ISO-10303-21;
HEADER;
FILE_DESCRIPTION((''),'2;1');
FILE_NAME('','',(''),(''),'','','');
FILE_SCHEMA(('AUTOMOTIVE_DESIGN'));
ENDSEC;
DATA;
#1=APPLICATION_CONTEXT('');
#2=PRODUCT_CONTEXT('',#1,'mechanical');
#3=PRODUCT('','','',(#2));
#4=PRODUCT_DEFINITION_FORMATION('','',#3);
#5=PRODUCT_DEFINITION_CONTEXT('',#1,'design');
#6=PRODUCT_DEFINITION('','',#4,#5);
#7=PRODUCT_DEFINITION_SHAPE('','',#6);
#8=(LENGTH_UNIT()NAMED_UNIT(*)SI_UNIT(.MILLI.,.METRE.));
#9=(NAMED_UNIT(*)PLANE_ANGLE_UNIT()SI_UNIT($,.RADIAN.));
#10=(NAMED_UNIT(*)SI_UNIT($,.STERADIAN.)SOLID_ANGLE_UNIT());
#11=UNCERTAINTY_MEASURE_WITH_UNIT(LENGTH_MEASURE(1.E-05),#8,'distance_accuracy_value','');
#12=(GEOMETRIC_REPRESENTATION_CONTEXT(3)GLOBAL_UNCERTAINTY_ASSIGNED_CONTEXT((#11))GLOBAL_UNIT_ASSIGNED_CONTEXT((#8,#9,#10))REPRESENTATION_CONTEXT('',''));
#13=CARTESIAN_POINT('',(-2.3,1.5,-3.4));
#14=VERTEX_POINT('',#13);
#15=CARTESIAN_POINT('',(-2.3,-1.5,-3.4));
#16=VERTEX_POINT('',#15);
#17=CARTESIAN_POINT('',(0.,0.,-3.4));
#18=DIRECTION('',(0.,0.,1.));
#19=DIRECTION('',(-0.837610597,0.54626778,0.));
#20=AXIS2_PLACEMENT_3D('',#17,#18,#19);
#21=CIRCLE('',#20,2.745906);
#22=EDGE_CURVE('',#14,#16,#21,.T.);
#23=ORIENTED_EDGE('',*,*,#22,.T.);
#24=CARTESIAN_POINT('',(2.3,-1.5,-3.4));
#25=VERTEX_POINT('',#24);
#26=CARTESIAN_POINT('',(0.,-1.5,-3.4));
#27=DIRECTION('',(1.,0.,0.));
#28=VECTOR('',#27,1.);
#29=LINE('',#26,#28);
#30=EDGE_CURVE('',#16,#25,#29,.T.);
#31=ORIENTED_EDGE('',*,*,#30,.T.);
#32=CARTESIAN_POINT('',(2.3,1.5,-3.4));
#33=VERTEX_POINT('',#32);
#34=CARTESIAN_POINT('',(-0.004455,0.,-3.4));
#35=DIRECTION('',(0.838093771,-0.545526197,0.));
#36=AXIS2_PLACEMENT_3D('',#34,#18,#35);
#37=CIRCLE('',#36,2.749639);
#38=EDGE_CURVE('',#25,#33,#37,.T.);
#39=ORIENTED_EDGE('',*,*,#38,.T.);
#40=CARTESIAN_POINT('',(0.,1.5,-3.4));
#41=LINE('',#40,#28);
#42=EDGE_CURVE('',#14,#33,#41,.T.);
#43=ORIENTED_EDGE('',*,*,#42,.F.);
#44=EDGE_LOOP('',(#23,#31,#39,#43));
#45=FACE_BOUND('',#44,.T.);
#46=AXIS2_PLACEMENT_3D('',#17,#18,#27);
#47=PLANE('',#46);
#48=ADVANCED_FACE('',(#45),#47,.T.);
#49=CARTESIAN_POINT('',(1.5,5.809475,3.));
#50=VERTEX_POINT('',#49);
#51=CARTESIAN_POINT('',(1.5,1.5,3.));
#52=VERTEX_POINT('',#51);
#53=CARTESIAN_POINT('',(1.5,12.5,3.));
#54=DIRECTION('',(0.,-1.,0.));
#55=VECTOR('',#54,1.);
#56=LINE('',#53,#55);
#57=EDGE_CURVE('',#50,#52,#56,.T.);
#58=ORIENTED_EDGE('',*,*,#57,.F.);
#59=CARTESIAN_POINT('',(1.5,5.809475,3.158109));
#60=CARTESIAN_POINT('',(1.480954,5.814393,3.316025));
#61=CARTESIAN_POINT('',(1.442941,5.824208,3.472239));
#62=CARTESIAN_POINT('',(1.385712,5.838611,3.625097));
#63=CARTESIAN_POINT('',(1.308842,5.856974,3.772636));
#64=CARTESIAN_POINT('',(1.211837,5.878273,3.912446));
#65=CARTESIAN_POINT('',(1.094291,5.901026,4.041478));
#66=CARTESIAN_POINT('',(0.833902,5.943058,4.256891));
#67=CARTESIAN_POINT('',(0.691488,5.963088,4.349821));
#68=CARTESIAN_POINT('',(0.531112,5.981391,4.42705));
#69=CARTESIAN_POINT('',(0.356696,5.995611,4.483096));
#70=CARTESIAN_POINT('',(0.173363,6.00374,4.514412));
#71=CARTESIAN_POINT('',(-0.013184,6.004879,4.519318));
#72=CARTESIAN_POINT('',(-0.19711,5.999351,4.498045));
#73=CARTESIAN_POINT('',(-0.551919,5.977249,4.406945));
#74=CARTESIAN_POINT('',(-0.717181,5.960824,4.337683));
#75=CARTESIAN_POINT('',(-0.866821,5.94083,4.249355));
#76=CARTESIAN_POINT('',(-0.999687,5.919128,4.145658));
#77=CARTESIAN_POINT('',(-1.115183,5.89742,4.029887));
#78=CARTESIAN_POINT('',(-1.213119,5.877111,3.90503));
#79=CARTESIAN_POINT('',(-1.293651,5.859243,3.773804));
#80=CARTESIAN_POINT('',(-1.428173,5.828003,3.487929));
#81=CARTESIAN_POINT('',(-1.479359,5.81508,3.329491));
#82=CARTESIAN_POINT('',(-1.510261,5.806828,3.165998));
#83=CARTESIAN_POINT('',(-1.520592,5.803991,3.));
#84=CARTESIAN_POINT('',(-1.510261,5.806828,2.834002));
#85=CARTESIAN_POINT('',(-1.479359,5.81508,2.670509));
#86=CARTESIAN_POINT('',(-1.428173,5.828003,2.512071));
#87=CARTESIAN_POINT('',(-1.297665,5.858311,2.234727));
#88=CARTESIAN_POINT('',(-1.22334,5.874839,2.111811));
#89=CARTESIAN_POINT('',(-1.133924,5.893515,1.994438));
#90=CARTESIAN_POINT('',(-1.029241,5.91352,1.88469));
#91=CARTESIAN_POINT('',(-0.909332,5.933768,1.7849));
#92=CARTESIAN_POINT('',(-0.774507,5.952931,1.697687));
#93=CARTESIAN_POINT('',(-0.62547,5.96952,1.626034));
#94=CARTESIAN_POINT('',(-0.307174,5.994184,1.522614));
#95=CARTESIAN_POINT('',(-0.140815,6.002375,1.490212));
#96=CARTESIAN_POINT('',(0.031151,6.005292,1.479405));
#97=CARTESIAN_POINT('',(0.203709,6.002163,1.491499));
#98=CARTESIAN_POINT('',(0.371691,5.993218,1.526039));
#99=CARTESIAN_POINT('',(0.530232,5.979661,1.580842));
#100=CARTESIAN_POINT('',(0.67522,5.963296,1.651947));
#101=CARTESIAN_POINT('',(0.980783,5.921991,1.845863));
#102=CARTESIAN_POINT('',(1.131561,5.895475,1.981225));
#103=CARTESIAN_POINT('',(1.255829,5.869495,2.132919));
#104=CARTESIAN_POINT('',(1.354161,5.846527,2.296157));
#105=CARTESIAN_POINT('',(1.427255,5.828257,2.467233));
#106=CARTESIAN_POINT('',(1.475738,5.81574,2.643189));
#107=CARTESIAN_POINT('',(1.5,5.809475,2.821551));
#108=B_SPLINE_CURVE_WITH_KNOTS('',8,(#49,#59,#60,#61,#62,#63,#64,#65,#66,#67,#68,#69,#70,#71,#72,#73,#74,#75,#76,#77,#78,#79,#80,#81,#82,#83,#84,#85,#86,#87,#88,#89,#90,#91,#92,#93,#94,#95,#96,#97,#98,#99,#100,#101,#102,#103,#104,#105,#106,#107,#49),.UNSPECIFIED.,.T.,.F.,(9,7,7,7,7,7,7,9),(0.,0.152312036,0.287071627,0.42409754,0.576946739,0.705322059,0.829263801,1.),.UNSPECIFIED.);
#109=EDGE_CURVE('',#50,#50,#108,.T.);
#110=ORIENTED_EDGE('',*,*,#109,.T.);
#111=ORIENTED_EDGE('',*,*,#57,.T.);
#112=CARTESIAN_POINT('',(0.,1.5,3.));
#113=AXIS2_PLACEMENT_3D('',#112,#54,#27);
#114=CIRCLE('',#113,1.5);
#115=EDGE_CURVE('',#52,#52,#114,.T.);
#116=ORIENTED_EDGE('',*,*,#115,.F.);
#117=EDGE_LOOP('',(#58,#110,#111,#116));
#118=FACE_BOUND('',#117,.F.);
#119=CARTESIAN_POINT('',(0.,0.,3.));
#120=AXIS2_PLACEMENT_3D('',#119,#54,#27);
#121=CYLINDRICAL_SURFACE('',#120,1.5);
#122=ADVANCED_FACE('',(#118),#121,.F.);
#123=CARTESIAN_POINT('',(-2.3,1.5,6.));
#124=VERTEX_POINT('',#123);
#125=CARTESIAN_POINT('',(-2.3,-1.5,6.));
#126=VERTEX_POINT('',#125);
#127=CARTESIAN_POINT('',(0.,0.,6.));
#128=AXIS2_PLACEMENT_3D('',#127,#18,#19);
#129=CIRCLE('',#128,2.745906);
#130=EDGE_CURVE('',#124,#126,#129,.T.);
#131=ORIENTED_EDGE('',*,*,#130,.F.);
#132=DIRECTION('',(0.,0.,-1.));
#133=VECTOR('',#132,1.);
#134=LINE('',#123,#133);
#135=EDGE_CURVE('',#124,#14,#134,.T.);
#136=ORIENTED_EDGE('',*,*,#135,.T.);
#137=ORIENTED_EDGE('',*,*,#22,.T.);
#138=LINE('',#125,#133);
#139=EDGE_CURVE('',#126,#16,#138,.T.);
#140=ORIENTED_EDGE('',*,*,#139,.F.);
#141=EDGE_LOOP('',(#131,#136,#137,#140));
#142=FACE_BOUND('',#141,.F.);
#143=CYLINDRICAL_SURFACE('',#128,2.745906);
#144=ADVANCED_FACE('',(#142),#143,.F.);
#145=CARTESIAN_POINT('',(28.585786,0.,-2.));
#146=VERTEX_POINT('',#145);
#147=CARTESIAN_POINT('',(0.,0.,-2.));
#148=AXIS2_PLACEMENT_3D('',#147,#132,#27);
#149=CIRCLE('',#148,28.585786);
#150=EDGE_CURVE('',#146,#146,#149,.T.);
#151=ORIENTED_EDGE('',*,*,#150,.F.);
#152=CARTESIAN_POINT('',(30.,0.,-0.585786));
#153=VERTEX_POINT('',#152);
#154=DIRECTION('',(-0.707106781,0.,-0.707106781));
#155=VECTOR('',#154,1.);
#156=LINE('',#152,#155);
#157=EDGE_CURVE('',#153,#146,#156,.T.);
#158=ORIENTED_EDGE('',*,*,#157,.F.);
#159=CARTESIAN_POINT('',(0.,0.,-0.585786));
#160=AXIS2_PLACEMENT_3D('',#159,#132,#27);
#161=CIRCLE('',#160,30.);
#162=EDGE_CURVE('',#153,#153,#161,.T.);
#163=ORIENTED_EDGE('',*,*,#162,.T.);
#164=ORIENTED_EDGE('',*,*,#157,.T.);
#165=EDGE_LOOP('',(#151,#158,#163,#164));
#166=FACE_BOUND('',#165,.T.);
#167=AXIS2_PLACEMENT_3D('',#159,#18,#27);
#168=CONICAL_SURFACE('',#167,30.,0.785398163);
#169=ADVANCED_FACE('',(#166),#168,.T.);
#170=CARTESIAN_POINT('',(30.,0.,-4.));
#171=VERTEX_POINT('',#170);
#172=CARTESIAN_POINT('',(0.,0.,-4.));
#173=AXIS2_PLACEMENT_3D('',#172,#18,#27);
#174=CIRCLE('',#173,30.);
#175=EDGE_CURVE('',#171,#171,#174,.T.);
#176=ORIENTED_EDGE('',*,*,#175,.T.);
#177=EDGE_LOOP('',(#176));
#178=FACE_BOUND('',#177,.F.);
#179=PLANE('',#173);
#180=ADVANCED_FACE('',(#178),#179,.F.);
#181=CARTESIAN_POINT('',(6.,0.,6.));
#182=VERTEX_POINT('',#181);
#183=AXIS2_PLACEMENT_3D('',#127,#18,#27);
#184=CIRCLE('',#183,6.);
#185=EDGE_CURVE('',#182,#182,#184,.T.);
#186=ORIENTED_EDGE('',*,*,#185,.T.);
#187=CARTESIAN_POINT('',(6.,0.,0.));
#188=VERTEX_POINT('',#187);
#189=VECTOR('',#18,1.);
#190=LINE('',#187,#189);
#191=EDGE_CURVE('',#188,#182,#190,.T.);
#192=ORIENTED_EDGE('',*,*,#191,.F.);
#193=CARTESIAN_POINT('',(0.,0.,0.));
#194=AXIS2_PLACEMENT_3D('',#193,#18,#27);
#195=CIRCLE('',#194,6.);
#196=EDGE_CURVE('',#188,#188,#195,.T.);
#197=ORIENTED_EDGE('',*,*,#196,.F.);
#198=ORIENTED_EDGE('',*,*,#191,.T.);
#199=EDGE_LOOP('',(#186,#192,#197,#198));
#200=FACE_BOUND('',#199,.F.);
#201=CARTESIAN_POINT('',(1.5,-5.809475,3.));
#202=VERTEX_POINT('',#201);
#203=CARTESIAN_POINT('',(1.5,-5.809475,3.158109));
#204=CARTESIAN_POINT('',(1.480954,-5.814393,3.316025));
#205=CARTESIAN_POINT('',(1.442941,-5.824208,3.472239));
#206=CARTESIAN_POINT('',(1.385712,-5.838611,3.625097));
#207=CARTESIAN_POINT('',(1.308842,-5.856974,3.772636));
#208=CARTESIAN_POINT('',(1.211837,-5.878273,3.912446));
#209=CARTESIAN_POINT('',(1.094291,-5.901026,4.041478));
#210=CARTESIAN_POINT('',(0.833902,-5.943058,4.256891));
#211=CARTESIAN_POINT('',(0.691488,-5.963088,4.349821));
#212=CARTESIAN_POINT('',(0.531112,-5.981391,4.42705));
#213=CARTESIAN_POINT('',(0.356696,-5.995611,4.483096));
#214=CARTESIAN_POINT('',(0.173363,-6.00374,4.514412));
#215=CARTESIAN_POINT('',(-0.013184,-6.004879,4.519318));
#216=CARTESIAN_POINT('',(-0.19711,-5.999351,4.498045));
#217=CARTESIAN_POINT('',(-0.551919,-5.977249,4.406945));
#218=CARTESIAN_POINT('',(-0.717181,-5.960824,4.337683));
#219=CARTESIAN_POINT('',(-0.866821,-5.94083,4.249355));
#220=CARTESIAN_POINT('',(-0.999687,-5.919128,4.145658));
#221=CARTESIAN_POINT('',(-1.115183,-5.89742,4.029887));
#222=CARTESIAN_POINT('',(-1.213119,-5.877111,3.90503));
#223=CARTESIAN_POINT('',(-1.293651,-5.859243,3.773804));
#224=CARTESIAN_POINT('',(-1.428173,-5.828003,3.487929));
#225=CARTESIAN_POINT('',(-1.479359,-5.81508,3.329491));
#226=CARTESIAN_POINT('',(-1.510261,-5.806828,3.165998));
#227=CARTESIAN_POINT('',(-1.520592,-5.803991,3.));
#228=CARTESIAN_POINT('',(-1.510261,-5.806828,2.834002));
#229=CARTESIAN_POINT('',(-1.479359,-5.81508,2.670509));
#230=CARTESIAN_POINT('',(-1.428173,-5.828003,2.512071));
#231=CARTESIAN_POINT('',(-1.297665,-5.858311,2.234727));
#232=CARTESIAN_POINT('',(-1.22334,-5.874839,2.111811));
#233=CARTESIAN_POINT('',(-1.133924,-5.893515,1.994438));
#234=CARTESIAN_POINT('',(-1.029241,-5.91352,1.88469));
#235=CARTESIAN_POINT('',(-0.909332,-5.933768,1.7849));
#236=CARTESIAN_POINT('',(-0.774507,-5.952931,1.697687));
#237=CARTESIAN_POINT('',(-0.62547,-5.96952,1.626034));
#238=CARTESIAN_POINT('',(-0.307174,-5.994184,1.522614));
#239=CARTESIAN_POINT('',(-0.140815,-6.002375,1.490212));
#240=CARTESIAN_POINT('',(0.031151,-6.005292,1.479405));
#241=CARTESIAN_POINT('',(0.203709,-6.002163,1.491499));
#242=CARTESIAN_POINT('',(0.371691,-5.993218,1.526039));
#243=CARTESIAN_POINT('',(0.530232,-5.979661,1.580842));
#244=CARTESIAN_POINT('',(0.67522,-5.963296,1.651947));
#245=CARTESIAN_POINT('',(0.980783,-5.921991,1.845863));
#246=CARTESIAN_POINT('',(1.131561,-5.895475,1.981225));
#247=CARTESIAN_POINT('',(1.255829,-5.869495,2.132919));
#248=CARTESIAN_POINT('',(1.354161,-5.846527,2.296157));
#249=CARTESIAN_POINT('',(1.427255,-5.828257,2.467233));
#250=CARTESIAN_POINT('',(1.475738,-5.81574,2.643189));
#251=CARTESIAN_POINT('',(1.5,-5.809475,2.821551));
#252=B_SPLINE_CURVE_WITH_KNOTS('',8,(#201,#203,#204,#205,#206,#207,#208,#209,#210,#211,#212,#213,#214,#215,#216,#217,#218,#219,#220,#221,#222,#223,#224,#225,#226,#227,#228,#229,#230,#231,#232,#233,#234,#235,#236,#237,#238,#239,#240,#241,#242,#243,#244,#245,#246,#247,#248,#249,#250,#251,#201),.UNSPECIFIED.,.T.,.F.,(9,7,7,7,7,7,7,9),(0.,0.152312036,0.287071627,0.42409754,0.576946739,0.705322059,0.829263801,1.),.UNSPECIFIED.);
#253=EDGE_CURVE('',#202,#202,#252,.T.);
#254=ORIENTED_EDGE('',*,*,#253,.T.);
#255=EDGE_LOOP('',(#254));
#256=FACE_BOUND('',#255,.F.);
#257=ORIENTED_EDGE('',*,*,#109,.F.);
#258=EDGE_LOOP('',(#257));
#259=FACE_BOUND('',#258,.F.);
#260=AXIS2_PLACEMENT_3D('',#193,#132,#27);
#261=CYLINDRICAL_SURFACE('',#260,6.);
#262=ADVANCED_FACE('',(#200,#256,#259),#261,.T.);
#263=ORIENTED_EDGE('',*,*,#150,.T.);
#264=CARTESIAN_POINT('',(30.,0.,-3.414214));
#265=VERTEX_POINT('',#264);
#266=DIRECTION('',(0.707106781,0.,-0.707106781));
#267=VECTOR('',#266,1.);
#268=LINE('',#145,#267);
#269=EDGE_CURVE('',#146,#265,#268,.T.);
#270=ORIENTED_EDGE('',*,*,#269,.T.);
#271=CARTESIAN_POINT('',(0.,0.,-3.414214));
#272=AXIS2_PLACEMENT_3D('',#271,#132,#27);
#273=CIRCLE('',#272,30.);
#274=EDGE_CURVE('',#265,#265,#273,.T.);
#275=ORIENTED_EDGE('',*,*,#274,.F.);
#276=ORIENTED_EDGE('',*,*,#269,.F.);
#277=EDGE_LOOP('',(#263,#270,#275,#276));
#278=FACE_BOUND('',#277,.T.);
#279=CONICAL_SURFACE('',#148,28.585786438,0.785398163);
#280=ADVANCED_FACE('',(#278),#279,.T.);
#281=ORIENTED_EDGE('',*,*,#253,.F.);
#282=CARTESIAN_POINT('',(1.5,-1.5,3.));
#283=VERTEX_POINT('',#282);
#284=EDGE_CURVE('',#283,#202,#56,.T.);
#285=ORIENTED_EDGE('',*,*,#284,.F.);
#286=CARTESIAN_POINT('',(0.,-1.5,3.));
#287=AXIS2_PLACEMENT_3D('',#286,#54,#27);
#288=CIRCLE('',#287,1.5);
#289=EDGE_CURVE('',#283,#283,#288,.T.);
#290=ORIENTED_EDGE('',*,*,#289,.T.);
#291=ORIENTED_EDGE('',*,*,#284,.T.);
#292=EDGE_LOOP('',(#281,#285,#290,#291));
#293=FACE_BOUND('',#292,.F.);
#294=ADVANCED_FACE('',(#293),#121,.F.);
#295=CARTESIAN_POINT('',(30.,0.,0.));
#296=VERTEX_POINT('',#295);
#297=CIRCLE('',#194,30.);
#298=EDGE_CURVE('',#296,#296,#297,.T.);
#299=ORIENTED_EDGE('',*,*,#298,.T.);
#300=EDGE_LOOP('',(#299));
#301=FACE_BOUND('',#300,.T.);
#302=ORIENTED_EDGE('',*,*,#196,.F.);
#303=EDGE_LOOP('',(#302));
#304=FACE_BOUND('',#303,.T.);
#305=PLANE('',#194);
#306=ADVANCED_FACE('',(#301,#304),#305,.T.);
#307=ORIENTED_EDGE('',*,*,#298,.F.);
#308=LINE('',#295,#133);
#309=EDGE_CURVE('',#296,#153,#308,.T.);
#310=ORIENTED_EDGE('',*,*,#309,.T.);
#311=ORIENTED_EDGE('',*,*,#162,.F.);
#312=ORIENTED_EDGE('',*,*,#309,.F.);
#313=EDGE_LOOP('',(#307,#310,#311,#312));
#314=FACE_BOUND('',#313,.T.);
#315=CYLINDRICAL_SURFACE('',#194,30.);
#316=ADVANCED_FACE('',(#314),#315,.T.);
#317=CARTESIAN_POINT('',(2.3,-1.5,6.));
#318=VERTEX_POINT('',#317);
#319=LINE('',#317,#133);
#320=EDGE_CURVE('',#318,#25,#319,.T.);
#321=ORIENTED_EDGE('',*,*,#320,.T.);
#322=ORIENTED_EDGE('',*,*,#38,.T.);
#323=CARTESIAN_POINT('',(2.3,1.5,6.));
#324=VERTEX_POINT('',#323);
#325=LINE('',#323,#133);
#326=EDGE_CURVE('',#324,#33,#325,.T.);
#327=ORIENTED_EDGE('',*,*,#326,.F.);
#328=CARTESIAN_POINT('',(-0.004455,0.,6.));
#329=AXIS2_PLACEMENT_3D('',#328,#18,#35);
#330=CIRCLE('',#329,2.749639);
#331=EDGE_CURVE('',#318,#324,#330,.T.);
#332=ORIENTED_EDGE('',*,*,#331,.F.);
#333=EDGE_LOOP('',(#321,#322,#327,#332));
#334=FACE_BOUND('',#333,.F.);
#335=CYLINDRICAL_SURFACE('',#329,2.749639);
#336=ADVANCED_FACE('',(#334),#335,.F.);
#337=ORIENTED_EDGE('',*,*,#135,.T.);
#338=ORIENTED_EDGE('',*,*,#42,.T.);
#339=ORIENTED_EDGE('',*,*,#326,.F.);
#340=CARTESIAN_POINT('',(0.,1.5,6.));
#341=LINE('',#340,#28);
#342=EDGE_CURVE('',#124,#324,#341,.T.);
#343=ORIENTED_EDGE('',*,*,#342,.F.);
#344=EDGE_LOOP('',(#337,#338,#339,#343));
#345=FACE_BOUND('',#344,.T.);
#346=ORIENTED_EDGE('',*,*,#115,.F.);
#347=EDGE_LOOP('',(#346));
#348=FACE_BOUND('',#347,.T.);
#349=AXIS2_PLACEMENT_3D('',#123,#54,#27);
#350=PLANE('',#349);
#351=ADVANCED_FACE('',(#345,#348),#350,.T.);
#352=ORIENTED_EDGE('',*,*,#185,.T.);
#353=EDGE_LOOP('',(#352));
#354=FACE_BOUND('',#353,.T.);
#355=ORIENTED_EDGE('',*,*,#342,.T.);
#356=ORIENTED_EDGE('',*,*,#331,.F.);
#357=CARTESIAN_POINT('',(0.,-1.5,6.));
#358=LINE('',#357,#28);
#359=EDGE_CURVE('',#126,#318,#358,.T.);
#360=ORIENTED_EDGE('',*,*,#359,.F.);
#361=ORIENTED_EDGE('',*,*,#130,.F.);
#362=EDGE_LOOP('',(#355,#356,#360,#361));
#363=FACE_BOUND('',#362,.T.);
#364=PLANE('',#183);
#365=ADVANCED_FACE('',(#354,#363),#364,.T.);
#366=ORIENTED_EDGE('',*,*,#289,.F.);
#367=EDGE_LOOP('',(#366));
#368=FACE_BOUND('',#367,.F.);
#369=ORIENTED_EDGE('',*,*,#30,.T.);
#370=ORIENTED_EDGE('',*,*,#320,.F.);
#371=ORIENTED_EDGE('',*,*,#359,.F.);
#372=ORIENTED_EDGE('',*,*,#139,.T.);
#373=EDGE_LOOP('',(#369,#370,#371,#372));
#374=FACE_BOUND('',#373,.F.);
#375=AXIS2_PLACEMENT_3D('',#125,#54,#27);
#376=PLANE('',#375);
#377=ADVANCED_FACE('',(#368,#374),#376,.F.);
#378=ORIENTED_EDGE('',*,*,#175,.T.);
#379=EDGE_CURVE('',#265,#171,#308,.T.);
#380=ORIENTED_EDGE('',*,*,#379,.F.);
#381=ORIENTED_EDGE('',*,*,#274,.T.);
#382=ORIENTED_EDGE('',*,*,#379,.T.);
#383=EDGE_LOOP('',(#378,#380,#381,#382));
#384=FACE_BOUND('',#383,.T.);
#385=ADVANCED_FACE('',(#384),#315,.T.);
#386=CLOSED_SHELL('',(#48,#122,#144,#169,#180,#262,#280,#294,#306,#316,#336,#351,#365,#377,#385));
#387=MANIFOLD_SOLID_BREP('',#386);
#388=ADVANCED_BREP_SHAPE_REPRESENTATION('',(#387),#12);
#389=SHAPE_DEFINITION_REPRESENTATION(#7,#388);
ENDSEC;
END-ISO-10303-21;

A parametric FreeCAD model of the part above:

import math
import FreeCAD as App
import Part
import Sketcher

V = App.Vector


def add_polygon(sketch, points):
    """Adds a closed chain of lines whose ends are joined by coincident constraints."""
    first, n = sketch.GeometryCount, len(points)
    for a, b in zip(points, points[1:] + points[:1]):
        sketch.addGeometry(Part.LineSegment(App.Vector(*a, 0), App.Vector(*b, 0)), False)
    for i in range(n):
        sketch.addConstraint(Sketcher.Constraint("Coincident", first + i, 2, first + (i + 1) % n, 1))

doc = App.newDocument("Part")
body = doc.addObject("PartDesign::Body", "Body")

# Sketch on XY plane
sketch1 = body.newObject("Sketcher::SketchObject", "Sketch")
sketch1.AttachmentSupport = (doc.getObject("XY_Plane"), [""])
sketch1.MapMode = "FlatFace"
sketch1.addGeometry(Part.Circle(V(0, 0, 0), V(0, 0, 1), 30), False)
sketch1.addConstraint([
    Sketcher.Constraint("Coincident", 0, 3, -1, 1),
    Sketcher.Constraint("Diameter", 0, 60.0),
])
pad1 = body.newObject("PartDesign::Pad", "Pad")
pad1.Profile = sketch1
pad1.Length = 4
pad1.Reversed = True

# Sketch on XY plane
sketch2 = body.newObject("Sketcher::SketchObject", "Sketch001")
sketch2.AttachmentSupport = (doc.getObject("XY_Plane"), [""])
sketch2.MapMode = "FlatFace"
sketch2.addGeometry(Part.Circle(V(0, 0, 0), V(0, 0, 1), 6), False)
sketch2.addConstraint([
    Sketcher.Constraint("Coincident", 0, 3, -1, 1),
    Sketcher.Constraint("Diameter", 0, 12.0),
])
pad2 = body.newObject("PartDesign::Pad", "Pad001")
pad2.Profile = sketch2
pad2.Length = 6

# Sketch on XZ plane
sketch3 = body.newObject("Sketcher::SketchObject", "Sketch002")
sketch3.AttachmentSupport = (doc.getObject("XZ_Plane"), [""])
sketch3.MapMode = "FlatFace"
sketch3.addGeometry(Part.Circle(V(0, 3, 0), V(0, 0, 1), 1.5), False)
sketch3.addConstraint([
    Sketcher.Constraint("PointOnObject", 0, 3, -2),
    Sketcher.Constraint("Diameter", 0, 3.0),
    Sketcher.Constraint("DistanceY", -1, 1, 0, 3, 3.0),
])
pocket1 = body.newObject("PartDesign::Pocket", "Pocket")
pocket1.Profile = sketch3
pocket1.Length = 25
pocket1.Midplane = True

# Sketch on XY plane
sketch4 = body.newObject("Sketcher::SketchObject", "Sketch003")
sketch4.AttachmentSupport = (doc.getObject("XY_Plane"), [""])
sketch4.MapMode = "FlatFace"
sketch4.AttachmentOffset = App.Placement(V(0, 0, 6), App.Rotation())
sketch4.addGeometry([
    Part.LineSegment(V(-2.3, -1.5, 0), V(2.3, -1.5, 0)),
    Part.ArcOfCircle(Part.Circle(V(0, 0, 0), V(0, 0, 1), 2.7), math.radians(-33), math.radians(33)),
    Part.LineSegment(V(2.3, 1.5, 0), V(-2.3, 1.5, 0)),
    Part.ArcOfCircle(Part.Circle(V(0, 0, 0), V(0, 0, 1), 2.7), math.radians(147), math.radians(213)),
], False)
sketch4.addConstraint([
    Sketcher.Constraint("Coincident", 0, 2, 1, 1),
    Sketcher.Constraint("Coincident", 1, 2, 2, 1),
    Sketcher.Constraint("Coincident", 2, 2, 3, 1),
    Sketcher.Constraint("Coincident", 3, 2, 0, 1),
    Sketcher.Constraint("Horizontal", 0),
    Sketcher.Constraint("Horizontal", 2),
    Sketcher.Constraint("Coincident", 3, 3, -1, 1),
    Sketcher.Constraint("Symmetric", 0, 2, 2, 2, -1, 1),
    Sketcher.Constraint("PointOnObject", 1, 3, -1),
    Sketcher.Constraint("DistanceX", 0, 1, 0, 2, 4.6),
    Sketcher.Constraint("DistanceY", 0, 2, 1, 2, 3.0),
    Sketcher.Constraint("Radius", 1, 2.749639),
])
pocket2 = body.newObject("PartDesign::Pocket", "Pocket001")
pocket2.Profile = sketch4
pocket2.Length = 9.4

# Sketch on XZ plane
sketch5 = body.newObject("Sketcher::SketchObject", "Sketch004")
sketch5.AttachmentSupport = (doc.getObject("XZ_Plane"), [""])
sketch5.MapMode = "FlatFace"
add_polygon(sketch5, [(30, -3.4), (30, -0.6), (28.6, -2)])  # lines 0-2
sketch5.addConstraint([
    Sketcher.Constraint("Vertical", 0),
    Sketcher.Constraint("Perpendicular", 1, 2),
    Sketcher.Constraint("Equal", 1, 2),
    Sketcher.Constraint("Distance", 1, 2.0),
    Sketcher.Constraint("DistanceX", -1, 1, 0, 2, 30.0),
    Sketcher.Constraint("DistanceY", 1, 2, -1, 1, 2.0),
])
groove = body.newObject("PartDesign::Groove", "Groove")
groove.Profile = sketch5
groove.ReferenceAxis = (sketch5, ["V_Axis"])
groove.Angle = 360

doc.recompute()
